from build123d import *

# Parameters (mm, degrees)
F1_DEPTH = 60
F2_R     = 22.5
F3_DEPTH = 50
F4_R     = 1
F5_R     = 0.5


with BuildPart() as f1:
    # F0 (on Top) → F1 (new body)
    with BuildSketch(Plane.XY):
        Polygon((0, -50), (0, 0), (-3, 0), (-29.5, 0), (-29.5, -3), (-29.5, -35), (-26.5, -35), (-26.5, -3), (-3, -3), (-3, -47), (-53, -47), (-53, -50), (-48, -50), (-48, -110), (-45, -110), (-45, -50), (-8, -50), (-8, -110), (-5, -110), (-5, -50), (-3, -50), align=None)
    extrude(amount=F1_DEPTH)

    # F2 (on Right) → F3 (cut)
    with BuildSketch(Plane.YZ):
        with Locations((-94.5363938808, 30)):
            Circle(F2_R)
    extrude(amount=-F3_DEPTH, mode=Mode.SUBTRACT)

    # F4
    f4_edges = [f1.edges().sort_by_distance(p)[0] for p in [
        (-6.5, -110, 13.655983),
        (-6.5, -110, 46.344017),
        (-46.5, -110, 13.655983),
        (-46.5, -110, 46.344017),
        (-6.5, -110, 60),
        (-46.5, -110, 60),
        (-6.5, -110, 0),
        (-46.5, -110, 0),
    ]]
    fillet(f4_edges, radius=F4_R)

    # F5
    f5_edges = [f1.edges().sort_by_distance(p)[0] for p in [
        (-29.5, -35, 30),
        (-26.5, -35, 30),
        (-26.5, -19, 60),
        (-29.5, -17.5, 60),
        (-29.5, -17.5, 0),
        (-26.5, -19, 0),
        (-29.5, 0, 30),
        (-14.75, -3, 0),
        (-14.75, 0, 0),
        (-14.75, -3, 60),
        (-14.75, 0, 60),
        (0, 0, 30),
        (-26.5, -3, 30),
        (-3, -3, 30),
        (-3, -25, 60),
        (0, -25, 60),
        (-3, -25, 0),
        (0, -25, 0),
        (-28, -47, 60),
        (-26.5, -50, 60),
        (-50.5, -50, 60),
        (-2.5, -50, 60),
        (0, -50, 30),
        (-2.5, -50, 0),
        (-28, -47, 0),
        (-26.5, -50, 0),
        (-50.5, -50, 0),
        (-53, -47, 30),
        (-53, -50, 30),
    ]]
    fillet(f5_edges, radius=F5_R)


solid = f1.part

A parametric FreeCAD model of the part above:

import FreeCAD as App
import Part
import Sketcher


def edges_at(feature, points):
    """Names of the edges that pass closest to the given points."""
    edges = feature.Shape.Edges
    near = lambda p: min(range(len(edges)), key=lambda i: edges[i].distToShape(Part.Vertex(*p))[0])
    return sorted({f"Edge{near(p) + 1}" for p in points})

doc = App.newDocument("Part")
params = doc.addObject("Spreadsheet::Sheet", "Params")
for row, (alias, value) in enumerate([
    ("sketch1_width", "3 mm"),
    ("sketch1_width2", "50 mm"),
    ("sketch1_width3", "5 mm"),
    ("sketch1_width4", "37 mm"),
    ("sketch1_height", "35 mm"),
    ("pad1_length", "60 mm"),
    ("sketch2_diameter", "45 mm"),
    ("pocket1_length", "50 mm"),
    ("fillet_radius", "1 mm"),
    ("fillet2_radius", "0.5 mm"),
], start=1):
    params.set(f"A{row}", alias)
    params.set(f"B{row}", "=" + value)
    params.setAlias(f"B{row}", alias)

body = doc.addObject("PartDesign::Body", "Body")

# Sketch on XY plane
sketch1 = doc.addObject("Sketcher::SketchObject", "Sketch")
body.addObject(sketch1)
sketch1.AttachmentSupport = (doc.XY_Plane, [""])
sketch1.MapMode = "FlatFace"
sketch1.addGeometry(Part.LineSegment(App.Vector(0, -50, 0), App.Vector(0, 0, 0)), False)
sketch1.addGeometry(Part.LineSegment(App.Vector(0, 0, 0), App.Vector(-29.5, 0, 0)), False)
sketch1.addGeometry(Part.LineSegment(App.Vector(-29.5, 0, 0), App.Vector(-29.5, -35, 0)), False)
sketch1.addGeometry(Part.LineSegment(App.Vector(-29.5, -35, 0), App.Vector(-26.5, -35, 0)), False)
sketch1.addGeometry(Part.LineSegment(App.Vector(-26.5, -35, 0), App.Vector(-26.5, -3, 0)), False)
sketch1.addGeometry(Part.LineSegment(App.Vector(-26.5, -3, 0), App.Vector(-3, -3, 0)), False)
sketch1.addGeometry(Part.LineSegment(App.Vector(-3, -3, 0), App.Vector(-3, -47, 0)), False)
sketch1.addGeometry(Part.LineSegment(App.Vector(-3, -47, 0), App.Vector(-53, -47, 0)), False)
sketch1.addGeometry(Part.LineSegment(App.Vector(-53, -47, 0), App.Vector(-53, -50, 0)), False)
sketch1.addGeometry(Part.LineSegment(App.Vector(-53, -50, 0), App.Vector(-48, -50, 0)), False)
sketch1.addGeometry(Part.LineSegment(App.Vector(-48, -50, 0), App.Vector(-48, -110, 0)), False)
sketch1.addGeometry(Part.LineSegment(App.Vector(-48, -110, 0), App.Vector(-45, -110, 0)), False)
sketch1.addGeometry(Part.LineSegment(App.Vector(-45, -110, 0), App.Vector(-45, -50, 0)), False)
sketch1.addGeometry(Part.LineSegment(App.Vector(-45, -50, 0), App.Vector(-8, -50, 0)), False)
sketch1.addGeometry(Part.LineSegment(App.Vector(-8, -50, 0), App.Vector(-8, -110, 0)), False)
sketch1.addGeometry(Part.LineSegment(App.Vector(-8, -110, 0), App.Vector(-5, -110, 0)), False)
sketch1.addGeometry(Part.LineSegment(App.Vector(-5, -110, 0), App.Vector(-5, -50, 0)), False)
sketch1.addGeometry(Part.LineSegment(App.Vector(-5, -50, 0), App.Vector(0, -50, 0)), False)
sketch1.addConstraint(Sketcher.Constraint("Coincident", 0, 2, 1, 1))
sketch1.addConstraint(Sketcher.Constraint("Coincident", 1, 2, 2, 1))
sketch1.addConstraint(Sketcher.Constraint("Coincident", 2, 2, 3, 1))
sketch1.addConstraint(Sketcher.Constraint("Coincident", 3, 2, 4, 1))
sketch1.addConstraint(Sketcher.Constraint("Coincident", 4, 2, 5, 1))
sketch1.addConstraint(Sketcher.Constraint("Coincident", 5, 2, 6, 1))
sketch1.addConstraint(Sketcher.Constraint("Coincident", 6, 2, 7, 1))
sketch1.addConstraint(Sketcher.Constraint("Coincident", 7, 2, 8, 1))
sketch1.addConstraint(Sketcher.Constraint("Coincident", 8, 2, 9, 1))
sketch1.addConstraint(Sketcher.Constraint("Coincident", 9, 2, 10, 1))
sketch1.addConstraint(Sketcher.Constraint("Coincident", 10, 2, 11, 1))
sketch1.addConstraint(Sketcher.Constraint("Coincident", 11, 2, 12, 1))
sketch1.addConstraint(Sketcher.Constraint("Coincident", 12, 2, 13, 1))
sketch1.addConstraint(Sketcher.Constraint("Coincident", 13, 2, 14, 1))
sketch1.addConstraint(Sketcher.Constraint("Coincident", 14, 2, 15, 1))
sketch1.addConstraint(Sketcher.Constraint("Coincident", 15, 2, 16, 1))
sketch1.addConstraint(Sketcher.Constraint("Coincident", 16, 2, 17, 1))
sketch1.addConstraint(Sketcher.Constraint("Coincident", 17, 2, 0, 1))
sketch1.addConstraint(Sketcher.Constraint("Vertical", 0))
sketch1.addConstraint(Sketcher.Constraint("Horizontal", 1))
sketch1.addConstraint(Sketcher.Constraint("Vertical", 2))
sketch1.addConstraint(Sketcher.Constraint("Horizontal", 3))
sketch1.addConstraint(Sketcher.Constraint("Vertical", 4))
sketch1.addConstraint(Sketcher.Constraint("Horizontal", 5))
sketch1.addConstraint(Sketcher.Constraint("Vertical", 6))
sketch1.addConstraint(Sketcher.Constraint("Horizontal", 7))
sketch1.addConstraint(Sketcher.Constraint("Vertical", 8))
sketch1.addConstraint(Sketcher.Constraint("Horizontal", 9))
sketch1.addConstraint(Sketcher.Constraint("Vertical", 10))
sketch1.addConstraint(Sketcher.Constraint("Horizontal", 11))
sketch1.addConstraint(Sketcher.Constraint("Vertical", 12))
sketch1.addConstraint(Sketcher.Constraint("Horizontal", 13))
sketch1.addConstraint(Sketcher.Constraint("Vertical", 14))
sketch1.addConstraint(Sketcher.Constraint("Horizontal", 15))
sketch1.addConstraint(Sketcher.Constraint("Vertical", 16))
sketch1.addConstraint(Sketcher.Constraint("Horizontal", 17))
sketch1.addConstraint(Sketcher.Constraint("Coincident", 0, 2, -1, 1))
sketch1.addConstraint(Sketcher.Constraint("Horizontal", 9, 2, 12, 2))
sketch1.addConstraint(Sketcher.Constraint("Horizontal", 11, 2, 14, 2))
sketch1.addConstraint(Sketcher.Constraint("Horizontal", 13, 2, 16, 2))
sketch1.addConstraint(Sketcher.Constraint("Equal", 3, 11))
sketch1.addConstraint(Sketcher.Constraint("Equal", 11, 15))
sketch1.addConstraint(Sketcher.Constraint("Equal", 9, 17))
sketch1.addConstraint(Sketcher.Constraint("Equal", 7, 0))
sketch1.addConstraint(Sketcher.Constraint("Equal", 15, 8))
sketch1.addConstraint(Sketcher.Constraint("DistanceX", 3, 1, 3, 2, 3.0))
sketch1.addConstraint(Sketcher.Constraint("DistanceX", 7, 2, 7, 1, 50.0))
sketch1.addConstraint(Sketcher.Constraint("DistanceX", 9, 1, 9, 2, 5.0))
sketch1.addConstraint(Sketcher.Constraint("DistanceX", 13, 1, 13, 2, 37.0))
sketch1.addConstraint(Sketcher.Constraint("DistanceY", 2, 2, 2, 1, 35.0))
sketch1.addConstraint(Sketcher.Constraint("DistanceY", 4, 1, 4, 2, 32.0))
sketch1.addConstraint(Sketcher.Constraint("DistanceY", 10, 2, 10, 1, 60.0))
sketch1.addConstraint(Sketcher.Constraint("DistanceX", 1, 2, 1, 1, 29.5))
sketch1.setExpression("Constraints[45]", "Params.sketch1_width")
sketch1.setExpression("Constraints[46]", "Params.sketch1_width2")
sketch1.setExpression("Constraints[47]", "Params.sketch1_width3")
sketch1.setExpression("Constraints[48]", "Params.sketch1_width4")
sketch1.setExpression("Constraints[49]", "Params.sketch1_height")
pad1 = doc.addObject("PartDesign::Pad", "Pad")
body.addObject(pad1)
pad1.Profile = sketch1
pad1.setExpression("Length", "Params.pad1_length")

# Sketch on YZ plane
sketch2 = doc.addObject("Sketcher::SketchObject", "Sketch001")
body.addObject(sketch2)
sketch2.AttachmentSupport = (doc.YZ_Plane, [""])
sketch2.MapMode = "FlatFace"
sketch2.addGeometry(Part.Circle(App.Vector(-95, 30, 0), App.Vector(0, 0, 1), 22), False)
sketch2.addConstraint(Sketcher.Constraint("Diameter", 0, 45.0))
sketch2.addConstraint(Sketcher.Constraint("DistanceY", -1, 1, 0, 3, 30.0))
sketch2.addConstraint(Sketcher.Constraint("DistanceX", 0, 3, -1, 1, 94.536394))
sketch2.setExpression("Constraints[0]", "Params.sketch2_diameter")
pocket1 = doc.addObject("PartDesign::Pocket", "Pocket")
body.addObject(pocket1)
pocket1.Profile = sketch2
pocket1.setExpression("Length", "Params.pocket1_length")
doc.recompute()

fillet = doc.addObject("PartDesign::Fillet", "Fillet")
body.addObject(fillet)
fillet.Base = (pocket1, edges_at(pocket1, [
    (-6.5, -110, 13.656),
    (-6.5, -110, 46.344),
    (-46.5, -110, 13.656),
    (-46.5, -110, 46.344),
    (-6.5, -110, 60),
    (-46.5, -110, 60),
    (-6.5, -110, 0),
    (-46.5, -110, 0),
]))
fillet.setExpression("Radius", "Params.fillet_radius")
doc.recompute()

fillet2 = doc.addObject("PartDesign::Fillet", "Fillet001")
body.addObject(fillet2)
fillet2.Base = (fillet, edges_at(fillet, [
    (-29.5, -35, 30),
    (-26.5, -35, 30),
    (-26.5, -19, 60),
    (-29.5, -17.5, 60),
    (-29.5, -17.5, 0),
    (-26.5, -19, 0),
    (-29.5, 0, 30),
    (-14.75, -3, 0),
    (-14.75, 0, 0),
    (-14.75, -3, 60),
    (-14.75, 0, 60),
    (0, 0, 30),
    (-26.5, -3, 30),
    (-3, -3, 30),
    (-3, -25, 60),
    (0, -25, 60),
    (-3, -25, 0),
    (0, -25, 0),
    (-28, -47, 60),
    (-26.5, -50, 60),
    (-50.5, -50, 60),
    (-2.5, -50, 60),
    (0, -50, 30),
    (-2.5, -50, 0),
    (-28, -47, 0),
    (-26.5, -50, 0),
    (-50.5, -50, 0),
    (-53, -47, 30),
    (-53, -50, 30),
]))
fillet2.setExpression("Radius", "Params.fillet2_radius")

doc.recompute()
